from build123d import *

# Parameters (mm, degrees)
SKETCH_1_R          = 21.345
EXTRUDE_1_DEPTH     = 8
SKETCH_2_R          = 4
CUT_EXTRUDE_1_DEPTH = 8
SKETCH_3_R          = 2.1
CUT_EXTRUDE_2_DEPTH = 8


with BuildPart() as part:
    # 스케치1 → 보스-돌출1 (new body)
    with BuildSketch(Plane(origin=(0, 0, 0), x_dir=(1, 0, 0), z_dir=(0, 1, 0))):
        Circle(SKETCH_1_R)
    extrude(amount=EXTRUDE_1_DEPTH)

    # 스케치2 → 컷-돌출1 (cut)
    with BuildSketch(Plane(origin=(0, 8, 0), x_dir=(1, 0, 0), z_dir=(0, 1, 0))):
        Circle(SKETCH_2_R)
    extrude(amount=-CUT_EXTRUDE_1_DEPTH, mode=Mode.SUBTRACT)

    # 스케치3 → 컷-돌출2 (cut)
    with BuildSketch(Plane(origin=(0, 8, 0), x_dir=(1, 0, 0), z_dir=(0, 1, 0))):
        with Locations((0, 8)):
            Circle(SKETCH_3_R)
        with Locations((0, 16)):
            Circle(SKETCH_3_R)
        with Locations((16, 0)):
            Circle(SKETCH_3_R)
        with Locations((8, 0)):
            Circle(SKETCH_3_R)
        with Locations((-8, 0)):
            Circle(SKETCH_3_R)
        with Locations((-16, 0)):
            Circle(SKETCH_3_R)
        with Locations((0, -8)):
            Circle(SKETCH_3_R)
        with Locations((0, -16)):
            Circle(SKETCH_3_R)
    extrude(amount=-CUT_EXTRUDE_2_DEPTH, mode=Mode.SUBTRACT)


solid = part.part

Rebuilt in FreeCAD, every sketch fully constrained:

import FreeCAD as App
import Part
import Sketcher

V = App.Vector

doc = App.newDocument("Part")
params = doc.addObject("Spreadsheet::Sheet", "Params")
for row, (alias, value) in enumerate([
    ("sketch1_diameter", "42.69 mm"),
    ("pad1_length", "8 mm"),
    ("sketch2_diameter", "8 mm"),
    ("pocket1_length", "8 mm"),
    ("sketch3_diameter", "4.2 mm"),
    ("pocket2_length", "8 mm"),
], start=1):
    params.set(f"A{row}", alias)
    params.set(f"B{row}", "=" + value)
    params.setAlias(f"B{row}", alias)

body = doc.addObject("PartDesign::Body", "Body")

sketch1 = body.newObject("Sketcher::SketchObject", "Sketch")
sketch1.AttachmentSupport = (doc.getObject("XZ_Plane"), [""])
sketch1.MapMode = "FlatFace"
sketch1.addGeometry(Part.Circle(V(0, 0, 0), V(0, 0, 1), 21.345), False)
sketch1.addConstraint([
    Sketcher.Constraint("Coincident", 0, 3, -1, 1),
    Sketcher.Constraint("Diameter", 0, 42.69),
])
sketch1.setExpression("Constraints[1]", "Params.sketch1_diameter")
pad1 = body.newObject("PartDesign::Pad", "Pad")
pad1.Profile = sketch1
pad1.setExpression("Length", "Params.pad1_length")
pad1.Reversed = True

sketch2 = body.newObject("Sketcher::SketchObject", "Sketch001")
sketch2.AttachmentSupport = (doc.getObject("XZ_Plane"), [""])
sketch2.MapMode = "FlatFace"
sketch2.AttachmentOffset = App.Placement(V(0, 0, -8), App.Rotation())
sketch2.addGeometry(Part.Circle(V(0, 0, 0), V(0, 0, 1), 4), False)
sketch2.addConstraint([
    Sketcher.Constraint("Coincident", 0, 3, -1, 1),
    Sketcher.Constraint("Diameter", 0, 8.0),
])
sketch2.setExpression("Constraints[1]", "Params.sketch2_diameter")
pocket1 = body.newObject("PartDesign::Pocket", "Pocket")
pocket1.Profile = sketch2
pocket1.setExpression("Length", "Params.pocket1_length")
pocket1.Reversed = True

sketch3 = body.newObject("Sketcher::SketchObject", "Sketch002")
sketch3.AttachmentSupport = (doc.getObject("XZ_Plane"), [""])
sketch3.MapMode = "FlatFace"
sketch3.AttachmentOffset = App.Placement(V(0, 0, -8), App.Rotation())
sketch3.addGeometry([
    Part.Circle(V(0, -8, 0), V(0, 0, 1), 2.1),
    Part.Circle(V(0, -16, 0), V(0, 0, 1), 2.1),
    Part.Circle(V(16, 0, 0), V(0, 0, 1), 2.1),
    Part.Circle(V(8, 0, 0), V(0, 0, 1), 2.1),
    Part.Circle(V(-8, 0, 0), V(0, 0, 1), 2.1),
    Part.Circle(V(-16, 0, 0), V(0, 0, 1), 2.1),
    Part.Circle(V(0, 8, 0), V(0, 0, 1), 2.1),
    Part.Circle(V(0, 16, 0), V(0, 0, 1), 2.1),
], False)
sketch3.addConstraint([
    Sketcher.Constraint("Equal", 0, 1),
    Sketcher.Constraint("Equal", 1, 2),
    Sketcher.Constraint("Equal", 2, 3),
    Sketcher.Constraint("Equal", 3, 4),
    Sketcher.Constraint("Equal", 4, 5),
    Sketcher.Constraint("Equal", 5, 6),
    Sketcher.Constraint("Equal", 6, 7),
    Sketcher.Constraint("Symmetric", 3, 3, 4, 3, -1, 1),
    Sketcher.Constraint("Symmetric", 2, 3, 5, 3, -1, 1),
    Sketcher.Constraint("Symmetric", 0, 3, 6, 3, -1, 1),
    Sketcher.Constraint("Symmetric", 1, 3, 7, 3, -1, 1),
    Sketcher.Constraint("PointOnObject", 0, 3, -2),
    Sketcher.Constraint("PointOnObject", 1, 3, -2),
    Sketcher.Constraint("PointOnObject", 2, 3, -1),
    Sketcher.Constraint("PointOnObject", 3, 3, -1),
    Sketcher.Constraint("Diameter", 0, 4.2),
    Sketcher.Constraint("DistanceY", 0, 3, -1, 1, 8.0),
    Sketcher.Constraint("DistanceY", 1, 3, -1, 1, 16.0),
    Sketcher.Constraint("DistanceX", -1, 1, 2, 3, 16.0),
    Sketcher.Constraint("DistanceX", -1, 1, 3, 3, 8.0),
])
sketch3.setExpression("Constraints[15]", "Params.sketch3_diameter")
pocket2 = body.newObject("PartDesign::Pocket", "Pocket001")
pocket2.Profile = sketch3
pocket2.setExpression("Length", "Params.pocket2_length")
pocket2.Reversed = True

doc.recompute()
